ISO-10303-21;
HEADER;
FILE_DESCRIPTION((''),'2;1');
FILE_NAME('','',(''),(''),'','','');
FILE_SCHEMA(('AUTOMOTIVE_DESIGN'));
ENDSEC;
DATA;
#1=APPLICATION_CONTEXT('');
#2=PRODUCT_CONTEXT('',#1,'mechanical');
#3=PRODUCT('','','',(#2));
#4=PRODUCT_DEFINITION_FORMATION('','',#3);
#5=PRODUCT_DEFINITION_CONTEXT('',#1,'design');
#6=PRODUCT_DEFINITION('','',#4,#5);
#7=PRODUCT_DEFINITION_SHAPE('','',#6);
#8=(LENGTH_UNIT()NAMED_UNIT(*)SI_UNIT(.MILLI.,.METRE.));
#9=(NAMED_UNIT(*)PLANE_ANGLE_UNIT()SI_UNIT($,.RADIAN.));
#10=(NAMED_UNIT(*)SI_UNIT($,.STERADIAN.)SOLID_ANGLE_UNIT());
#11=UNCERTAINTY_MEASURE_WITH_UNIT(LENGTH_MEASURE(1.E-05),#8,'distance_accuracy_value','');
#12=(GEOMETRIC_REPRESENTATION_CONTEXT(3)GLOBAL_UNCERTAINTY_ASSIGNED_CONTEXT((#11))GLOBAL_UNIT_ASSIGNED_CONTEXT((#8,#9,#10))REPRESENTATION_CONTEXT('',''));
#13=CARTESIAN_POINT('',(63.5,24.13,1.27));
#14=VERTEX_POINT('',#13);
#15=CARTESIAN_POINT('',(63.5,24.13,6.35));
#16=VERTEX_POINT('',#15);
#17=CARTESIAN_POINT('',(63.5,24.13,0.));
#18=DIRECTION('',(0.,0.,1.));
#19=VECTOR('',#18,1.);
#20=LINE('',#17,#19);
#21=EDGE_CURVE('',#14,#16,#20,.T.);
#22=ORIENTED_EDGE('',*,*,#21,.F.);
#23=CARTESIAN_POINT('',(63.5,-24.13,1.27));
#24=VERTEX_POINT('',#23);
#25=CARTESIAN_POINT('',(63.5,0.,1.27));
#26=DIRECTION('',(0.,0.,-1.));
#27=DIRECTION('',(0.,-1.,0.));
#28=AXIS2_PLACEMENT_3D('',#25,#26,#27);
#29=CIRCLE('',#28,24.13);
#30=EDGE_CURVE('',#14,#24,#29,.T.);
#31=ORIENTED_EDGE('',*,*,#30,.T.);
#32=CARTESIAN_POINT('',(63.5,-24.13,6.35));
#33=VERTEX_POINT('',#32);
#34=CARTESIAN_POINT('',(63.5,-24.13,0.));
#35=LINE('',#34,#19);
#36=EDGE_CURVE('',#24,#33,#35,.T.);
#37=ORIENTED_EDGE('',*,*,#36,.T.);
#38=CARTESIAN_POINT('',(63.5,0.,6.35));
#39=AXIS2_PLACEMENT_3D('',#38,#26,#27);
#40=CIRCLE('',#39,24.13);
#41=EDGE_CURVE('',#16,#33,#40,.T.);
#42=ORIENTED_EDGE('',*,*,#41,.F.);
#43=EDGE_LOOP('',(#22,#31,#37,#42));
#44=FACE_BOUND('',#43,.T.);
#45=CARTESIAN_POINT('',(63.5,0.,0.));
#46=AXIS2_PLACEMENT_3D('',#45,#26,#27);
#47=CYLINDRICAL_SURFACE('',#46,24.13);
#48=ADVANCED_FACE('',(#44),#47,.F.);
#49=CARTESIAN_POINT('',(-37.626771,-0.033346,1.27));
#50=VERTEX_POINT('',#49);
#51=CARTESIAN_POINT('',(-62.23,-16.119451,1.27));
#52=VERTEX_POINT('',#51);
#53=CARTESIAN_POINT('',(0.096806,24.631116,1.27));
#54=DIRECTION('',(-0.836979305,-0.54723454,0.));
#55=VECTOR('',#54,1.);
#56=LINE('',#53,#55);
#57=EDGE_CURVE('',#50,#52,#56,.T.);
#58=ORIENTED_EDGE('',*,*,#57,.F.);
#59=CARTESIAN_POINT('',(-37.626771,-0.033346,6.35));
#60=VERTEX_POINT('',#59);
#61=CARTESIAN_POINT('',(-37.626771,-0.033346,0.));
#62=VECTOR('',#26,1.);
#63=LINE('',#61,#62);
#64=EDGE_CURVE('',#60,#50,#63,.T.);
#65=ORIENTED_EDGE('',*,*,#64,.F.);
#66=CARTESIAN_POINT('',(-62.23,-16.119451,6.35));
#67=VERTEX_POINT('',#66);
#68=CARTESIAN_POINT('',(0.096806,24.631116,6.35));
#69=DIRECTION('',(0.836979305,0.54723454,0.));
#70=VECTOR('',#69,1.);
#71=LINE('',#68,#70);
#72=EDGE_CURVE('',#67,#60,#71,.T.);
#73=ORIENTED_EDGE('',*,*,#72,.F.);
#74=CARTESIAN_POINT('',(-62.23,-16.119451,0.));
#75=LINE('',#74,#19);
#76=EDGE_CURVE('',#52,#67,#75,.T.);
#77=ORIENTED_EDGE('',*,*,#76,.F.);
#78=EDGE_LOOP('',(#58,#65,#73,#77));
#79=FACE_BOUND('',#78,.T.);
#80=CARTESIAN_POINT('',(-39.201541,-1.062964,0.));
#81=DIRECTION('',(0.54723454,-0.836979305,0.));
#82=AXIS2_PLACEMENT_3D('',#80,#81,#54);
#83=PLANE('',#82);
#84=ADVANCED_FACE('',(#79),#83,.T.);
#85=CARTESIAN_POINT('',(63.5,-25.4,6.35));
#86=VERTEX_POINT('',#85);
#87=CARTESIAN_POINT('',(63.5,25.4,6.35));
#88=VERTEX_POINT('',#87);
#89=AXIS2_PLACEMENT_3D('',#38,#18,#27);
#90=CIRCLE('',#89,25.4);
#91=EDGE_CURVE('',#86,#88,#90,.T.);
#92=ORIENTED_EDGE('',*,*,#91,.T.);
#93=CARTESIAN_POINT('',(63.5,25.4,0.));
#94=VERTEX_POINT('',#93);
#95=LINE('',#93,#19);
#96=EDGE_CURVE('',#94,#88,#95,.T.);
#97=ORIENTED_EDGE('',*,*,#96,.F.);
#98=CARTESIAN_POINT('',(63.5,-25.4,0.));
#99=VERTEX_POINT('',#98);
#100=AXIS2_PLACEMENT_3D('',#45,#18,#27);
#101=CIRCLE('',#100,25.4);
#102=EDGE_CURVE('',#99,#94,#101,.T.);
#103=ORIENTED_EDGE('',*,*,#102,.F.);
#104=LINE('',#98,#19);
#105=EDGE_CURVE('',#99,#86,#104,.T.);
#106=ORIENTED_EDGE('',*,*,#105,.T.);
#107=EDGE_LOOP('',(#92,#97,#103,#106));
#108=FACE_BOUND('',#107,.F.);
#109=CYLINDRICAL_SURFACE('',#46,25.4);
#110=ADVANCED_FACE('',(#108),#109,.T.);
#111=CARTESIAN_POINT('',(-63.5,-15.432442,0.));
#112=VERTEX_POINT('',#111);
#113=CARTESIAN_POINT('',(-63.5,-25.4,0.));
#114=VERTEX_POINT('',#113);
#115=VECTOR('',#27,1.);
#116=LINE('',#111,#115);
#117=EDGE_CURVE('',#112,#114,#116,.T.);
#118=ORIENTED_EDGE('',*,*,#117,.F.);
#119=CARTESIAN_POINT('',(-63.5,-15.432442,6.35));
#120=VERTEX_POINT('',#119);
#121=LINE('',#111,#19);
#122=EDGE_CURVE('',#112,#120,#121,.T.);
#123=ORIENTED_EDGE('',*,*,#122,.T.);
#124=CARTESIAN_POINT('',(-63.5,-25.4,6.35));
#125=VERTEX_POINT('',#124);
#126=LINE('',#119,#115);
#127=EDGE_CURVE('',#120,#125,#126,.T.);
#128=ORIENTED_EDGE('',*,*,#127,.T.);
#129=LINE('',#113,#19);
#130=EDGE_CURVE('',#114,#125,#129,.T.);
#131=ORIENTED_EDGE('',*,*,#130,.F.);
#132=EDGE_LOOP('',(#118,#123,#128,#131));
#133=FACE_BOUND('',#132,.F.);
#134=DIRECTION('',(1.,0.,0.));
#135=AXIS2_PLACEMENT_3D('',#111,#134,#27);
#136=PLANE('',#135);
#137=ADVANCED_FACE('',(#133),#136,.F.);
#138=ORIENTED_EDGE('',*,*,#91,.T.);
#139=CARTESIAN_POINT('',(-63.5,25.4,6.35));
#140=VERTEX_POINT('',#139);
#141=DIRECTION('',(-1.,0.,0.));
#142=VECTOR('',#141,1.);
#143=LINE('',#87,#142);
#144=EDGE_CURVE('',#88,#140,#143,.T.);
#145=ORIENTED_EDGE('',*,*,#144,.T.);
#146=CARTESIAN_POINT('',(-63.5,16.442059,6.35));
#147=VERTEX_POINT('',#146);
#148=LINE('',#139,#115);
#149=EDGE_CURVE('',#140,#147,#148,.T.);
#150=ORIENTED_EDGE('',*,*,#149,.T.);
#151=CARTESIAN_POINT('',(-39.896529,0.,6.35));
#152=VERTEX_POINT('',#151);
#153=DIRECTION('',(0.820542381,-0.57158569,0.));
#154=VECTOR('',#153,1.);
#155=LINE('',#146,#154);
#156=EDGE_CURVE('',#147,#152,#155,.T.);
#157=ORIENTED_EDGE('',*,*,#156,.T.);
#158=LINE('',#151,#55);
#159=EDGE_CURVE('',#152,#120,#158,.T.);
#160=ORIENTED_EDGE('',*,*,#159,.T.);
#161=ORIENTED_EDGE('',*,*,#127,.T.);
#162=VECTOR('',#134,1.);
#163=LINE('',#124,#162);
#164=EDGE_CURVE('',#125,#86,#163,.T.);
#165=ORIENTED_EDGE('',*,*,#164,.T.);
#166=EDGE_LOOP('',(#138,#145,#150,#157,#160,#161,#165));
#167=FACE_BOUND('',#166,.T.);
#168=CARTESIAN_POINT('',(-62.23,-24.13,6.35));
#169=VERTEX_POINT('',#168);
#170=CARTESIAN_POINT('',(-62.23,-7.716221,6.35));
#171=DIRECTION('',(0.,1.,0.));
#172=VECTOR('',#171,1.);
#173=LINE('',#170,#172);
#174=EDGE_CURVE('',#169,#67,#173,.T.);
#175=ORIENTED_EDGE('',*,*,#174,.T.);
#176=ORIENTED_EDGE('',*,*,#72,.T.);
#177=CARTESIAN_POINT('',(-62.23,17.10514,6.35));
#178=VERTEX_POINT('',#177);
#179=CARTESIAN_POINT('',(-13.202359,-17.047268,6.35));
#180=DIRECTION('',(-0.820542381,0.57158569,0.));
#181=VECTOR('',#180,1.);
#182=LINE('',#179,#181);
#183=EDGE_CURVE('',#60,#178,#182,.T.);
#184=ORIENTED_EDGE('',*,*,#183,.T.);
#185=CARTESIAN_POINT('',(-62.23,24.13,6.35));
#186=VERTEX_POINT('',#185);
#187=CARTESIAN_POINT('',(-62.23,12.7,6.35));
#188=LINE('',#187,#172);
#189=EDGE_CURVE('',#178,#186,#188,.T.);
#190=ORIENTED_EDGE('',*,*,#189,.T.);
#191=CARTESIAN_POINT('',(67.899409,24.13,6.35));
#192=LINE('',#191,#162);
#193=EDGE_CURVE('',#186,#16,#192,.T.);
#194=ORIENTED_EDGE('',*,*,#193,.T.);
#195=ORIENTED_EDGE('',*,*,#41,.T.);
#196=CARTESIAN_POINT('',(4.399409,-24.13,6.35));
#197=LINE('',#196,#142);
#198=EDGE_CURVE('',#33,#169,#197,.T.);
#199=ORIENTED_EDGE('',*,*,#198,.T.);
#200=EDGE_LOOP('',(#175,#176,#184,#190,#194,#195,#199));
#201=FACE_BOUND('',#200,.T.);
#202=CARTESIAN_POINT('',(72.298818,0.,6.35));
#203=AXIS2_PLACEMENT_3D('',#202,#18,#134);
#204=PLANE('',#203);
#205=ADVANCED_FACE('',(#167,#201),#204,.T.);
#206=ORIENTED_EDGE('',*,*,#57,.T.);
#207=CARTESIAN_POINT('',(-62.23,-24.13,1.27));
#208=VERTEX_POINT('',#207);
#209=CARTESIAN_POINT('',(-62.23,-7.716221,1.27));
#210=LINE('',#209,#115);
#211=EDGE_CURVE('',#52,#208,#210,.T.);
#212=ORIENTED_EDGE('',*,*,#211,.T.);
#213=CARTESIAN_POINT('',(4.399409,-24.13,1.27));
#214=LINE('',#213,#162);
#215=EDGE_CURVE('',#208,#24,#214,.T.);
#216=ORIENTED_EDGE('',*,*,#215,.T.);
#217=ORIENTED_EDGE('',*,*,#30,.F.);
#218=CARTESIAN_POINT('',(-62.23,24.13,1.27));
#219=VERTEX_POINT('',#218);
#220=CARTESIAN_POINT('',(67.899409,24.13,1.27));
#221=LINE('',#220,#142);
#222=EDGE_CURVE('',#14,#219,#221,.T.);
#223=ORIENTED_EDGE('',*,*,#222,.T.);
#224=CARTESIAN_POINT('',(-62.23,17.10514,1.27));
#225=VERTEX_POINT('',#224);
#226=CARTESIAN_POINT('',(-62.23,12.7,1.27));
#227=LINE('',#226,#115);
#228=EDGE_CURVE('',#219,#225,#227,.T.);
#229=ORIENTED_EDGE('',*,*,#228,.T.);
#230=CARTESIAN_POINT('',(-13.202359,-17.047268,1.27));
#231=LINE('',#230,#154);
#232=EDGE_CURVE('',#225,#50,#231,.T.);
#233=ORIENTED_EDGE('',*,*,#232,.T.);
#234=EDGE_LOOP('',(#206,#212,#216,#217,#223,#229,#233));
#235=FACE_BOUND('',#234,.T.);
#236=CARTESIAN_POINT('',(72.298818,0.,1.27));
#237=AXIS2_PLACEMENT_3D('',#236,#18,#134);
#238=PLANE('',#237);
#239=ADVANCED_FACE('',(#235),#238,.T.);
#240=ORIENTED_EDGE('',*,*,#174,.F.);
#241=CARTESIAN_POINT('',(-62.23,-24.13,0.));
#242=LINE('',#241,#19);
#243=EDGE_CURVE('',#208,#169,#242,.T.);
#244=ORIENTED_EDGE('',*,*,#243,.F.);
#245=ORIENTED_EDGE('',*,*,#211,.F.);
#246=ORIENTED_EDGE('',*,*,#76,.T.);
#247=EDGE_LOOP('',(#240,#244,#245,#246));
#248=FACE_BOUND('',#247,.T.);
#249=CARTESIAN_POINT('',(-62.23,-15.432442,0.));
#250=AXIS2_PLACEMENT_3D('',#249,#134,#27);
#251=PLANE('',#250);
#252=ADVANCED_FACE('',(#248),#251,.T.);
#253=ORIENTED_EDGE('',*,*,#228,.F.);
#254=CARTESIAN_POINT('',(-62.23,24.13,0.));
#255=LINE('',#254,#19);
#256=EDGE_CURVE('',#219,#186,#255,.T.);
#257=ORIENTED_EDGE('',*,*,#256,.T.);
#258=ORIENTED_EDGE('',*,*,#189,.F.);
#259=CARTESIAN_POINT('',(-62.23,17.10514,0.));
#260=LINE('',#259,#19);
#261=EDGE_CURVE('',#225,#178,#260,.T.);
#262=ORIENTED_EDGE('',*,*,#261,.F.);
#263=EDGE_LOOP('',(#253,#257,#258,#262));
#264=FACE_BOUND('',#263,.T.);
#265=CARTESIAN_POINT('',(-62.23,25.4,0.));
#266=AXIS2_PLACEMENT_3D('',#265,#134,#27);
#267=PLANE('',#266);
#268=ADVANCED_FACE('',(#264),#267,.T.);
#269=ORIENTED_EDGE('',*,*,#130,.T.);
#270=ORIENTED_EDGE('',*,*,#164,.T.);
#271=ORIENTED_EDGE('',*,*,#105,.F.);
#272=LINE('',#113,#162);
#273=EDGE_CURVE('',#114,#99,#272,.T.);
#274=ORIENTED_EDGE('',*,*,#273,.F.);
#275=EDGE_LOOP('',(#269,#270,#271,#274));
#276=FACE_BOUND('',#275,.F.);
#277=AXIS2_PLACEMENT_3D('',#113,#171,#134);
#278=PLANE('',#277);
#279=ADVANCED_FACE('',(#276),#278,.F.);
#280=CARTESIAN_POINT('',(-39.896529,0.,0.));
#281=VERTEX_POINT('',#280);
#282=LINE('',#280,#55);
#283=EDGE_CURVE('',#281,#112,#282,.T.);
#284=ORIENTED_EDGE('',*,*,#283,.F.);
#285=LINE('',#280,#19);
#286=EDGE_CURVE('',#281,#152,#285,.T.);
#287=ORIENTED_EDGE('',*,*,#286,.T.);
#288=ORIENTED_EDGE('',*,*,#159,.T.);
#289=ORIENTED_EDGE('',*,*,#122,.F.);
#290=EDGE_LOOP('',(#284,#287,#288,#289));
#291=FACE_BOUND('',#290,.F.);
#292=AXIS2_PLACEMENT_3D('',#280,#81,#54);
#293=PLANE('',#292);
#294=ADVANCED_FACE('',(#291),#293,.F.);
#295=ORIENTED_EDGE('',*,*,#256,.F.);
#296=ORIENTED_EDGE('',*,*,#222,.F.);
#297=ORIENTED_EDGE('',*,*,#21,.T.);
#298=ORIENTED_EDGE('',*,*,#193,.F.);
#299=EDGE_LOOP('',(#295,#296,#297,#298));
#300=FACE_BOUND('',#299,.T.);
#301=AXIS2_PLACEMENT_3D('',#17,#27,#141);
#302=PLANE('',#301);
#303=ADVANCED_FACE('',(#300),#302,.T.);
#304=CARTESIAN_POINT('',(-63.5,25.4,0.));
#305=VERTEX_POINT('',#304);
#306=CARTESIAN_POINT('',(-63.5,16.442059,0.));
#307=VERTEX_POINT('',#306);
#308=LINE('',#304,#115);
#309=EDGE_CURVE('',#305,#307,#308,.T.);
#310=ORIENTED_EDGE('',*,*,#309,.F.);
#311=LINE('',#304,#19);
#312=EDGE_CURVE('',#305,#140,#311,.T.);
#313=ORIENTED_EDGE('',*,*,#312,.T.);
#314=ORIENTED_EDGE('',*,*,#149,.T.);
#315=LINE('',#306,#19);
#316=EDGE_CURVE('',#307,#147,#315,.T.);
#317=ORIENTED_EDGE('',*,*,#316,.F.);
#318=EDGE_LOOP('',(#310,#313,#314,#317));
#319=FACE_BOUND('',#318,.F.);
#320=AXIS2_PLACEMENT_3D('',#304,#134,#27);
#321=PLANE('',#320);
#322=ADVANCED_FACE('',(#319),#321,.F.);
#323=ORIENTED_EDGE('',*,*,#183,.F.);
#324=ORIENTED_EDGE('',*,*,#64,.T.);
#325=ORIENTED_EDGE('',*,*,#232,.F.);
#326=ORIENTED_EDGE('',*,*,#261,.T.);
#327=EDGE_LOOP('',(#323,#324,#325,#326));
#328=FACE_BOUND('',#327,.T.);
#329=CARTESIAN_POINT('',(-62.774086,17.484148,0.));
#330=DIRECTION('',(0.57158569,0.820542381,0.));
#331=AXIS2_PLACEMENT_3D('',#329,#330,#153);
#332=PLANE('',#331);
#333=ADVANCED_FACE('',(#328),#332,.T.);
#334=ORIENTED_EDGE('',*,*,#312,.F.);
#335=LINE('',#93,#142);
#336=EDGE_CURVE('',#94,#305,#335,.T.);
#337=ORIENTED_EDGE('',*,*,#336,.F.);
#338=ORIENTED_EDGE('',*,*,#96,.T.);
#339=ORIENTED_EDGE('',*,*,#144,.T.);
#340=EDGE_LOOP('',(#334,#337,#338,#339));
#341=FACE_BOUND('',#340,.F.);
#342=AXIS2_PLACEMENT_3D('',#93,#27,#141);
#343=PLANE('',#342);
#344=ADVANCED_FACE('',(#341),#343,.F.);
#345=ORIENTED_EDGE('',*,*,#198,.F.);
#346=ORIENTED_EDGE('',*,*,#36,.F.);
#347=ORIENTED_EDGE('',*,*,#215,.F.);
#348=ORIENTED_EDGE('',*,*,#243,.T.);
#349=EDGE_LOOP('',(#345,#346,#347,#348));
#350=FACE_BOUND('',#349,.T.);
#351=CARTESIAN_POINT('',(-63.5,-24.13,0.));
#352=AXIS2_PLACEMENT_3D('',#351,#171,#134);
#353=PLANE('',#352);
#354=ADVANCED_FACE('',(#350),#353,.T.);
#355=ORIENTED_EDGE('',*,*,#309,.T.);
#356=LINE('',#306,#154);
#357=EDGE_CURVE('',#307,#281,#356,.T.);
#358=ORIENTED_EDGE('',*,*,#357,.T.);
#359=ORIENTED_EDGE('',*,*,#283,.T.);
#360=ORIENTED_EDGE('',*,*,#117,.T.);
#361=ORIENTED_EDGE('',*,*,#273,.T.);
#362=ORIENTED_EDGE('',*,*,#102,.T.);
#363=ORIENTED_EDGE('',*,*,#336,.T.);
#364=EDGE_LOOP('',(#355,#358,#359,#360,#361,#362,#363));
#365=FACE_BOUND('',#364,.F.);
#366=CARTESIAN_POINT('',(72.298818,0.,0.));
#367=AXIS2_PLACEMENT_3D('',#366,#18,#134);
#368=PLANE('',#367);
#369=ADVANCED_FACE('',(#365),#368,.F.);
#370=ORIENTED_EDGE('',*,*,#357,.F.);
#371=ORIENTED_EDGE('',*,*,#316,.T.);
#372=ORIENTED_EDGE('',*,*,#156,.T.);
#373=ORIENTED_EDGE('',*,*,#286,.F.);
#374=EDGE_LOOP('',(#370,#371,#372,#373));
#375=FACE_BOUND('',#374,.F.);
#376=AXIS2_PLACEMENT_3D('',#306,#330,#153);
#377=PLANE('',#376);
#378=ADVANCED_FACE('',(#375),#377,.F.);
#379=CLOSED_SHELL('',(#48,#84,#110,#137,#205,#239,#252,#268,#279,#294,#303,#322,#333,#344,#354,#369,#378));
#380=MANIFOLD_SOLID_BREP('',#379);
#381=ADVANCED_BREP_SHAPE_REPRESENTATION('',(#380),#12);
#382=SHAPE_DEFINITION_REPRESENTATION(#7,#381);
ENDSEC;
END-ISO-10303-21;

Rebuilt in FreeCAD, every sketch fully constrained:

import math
import FreeCAD as App
import Part
import Sketcher
from FreeCAD import Vector
Q = App.Units.Quantity


def faces_at(feature, points):
    """Names of the faces that lie closest to the given points."""
    faces = feature.Shape.Faces
    near = lambda p: min(range(len(faces)), key=lambda i: faces[i].distToShape(Part.Vertex(*p))[0])
    return sorted({f"Face{near(p) + 1}" for p in points})

doc = App.newDocument("Part")
body = doc.addObject("PartDesign::Body", "Body")

# Sketch on XY plane
sketch1 = doc.addObject("Sketcher::SketchObject", "Sketch")
body.addObject(sketch1)
sketch1.AttachmentSupport = (doc.XY_Plane, [""])
sketch1.MapMode = "FlatFace"
sketch1.addGeometry([
    Part.ArcOfCircle(Part.Circle(Vector(64, 0, 0), Vector(0, 0, 1), 25), math.radians(-90), math.radians(90)),  # 0
    Part.LineSegment(Vector(64, 25, 0), Vector(-64, 25, 0)),  # 1
    Part.LineSegment(Vector(-64, 25, 0), Vector(-64, 16, 0)),  # 2
    Part.LineSegment(Vector(-64, 16, 0), Vector(-40, 0, 0)),  # 3
    Part.LineSegment(Vector(-40, 0, 0), Vector(-64, -15, 0)),  # 4
    Part.LineSegment(Vector(-64, -15, 0), Vector(-64, -25, 0)),  # 5
    Part.LineSegment(Vector(-64, -25, 0), Vector(64, -25, 0)),  # 6
], False)
sketch1.addConstraint([
    Sketcher.Constraint("Tangent", 0, 2, 1, 1),
    Sketcher.Constraint("Coincident", 1, 2, 2, 1),
    Sketcher.Constraint("Coincident", 2, 2, 3, 1),
    Sketcher.Constraint("Coincident", 3, 2, 4, 1),
    Sketcher.Constraint("Coincident", 4, 2, 5, 1),
    Sketcher.Constraint("Coincident", 5, 2, 6, 1),
    Sketcher.Constraint("Tangent", 6, 2, 0, 1),
    Sketcher.Constraint("Horizontal", 1),
    Sketcher.Constraint("Vertical", 2),
    Sketcher.Constraint("Vertical", 5),
    Sketcher.Constraint("Horizontal", 6),
    Sketcher.Constraint("Symmetric", 0, 2, 5, 2, -1, 1),
    Sketcher.Constraint("PointOnObject", 3, 2, -1),
    Sketcher.Constraint("Vertical", 2, 2, 4, 2),
    Sketcher.Constraint("Radius", 0, Q("1 in")),
    Sketcher.Constraint("DistanceX", 1, 2, 1, 1, Q("5 in")),
    Sketcher.Constraint("DistanceY", 2, 2, 2, 1, 8.957941),
    Sketcher.Constraint("DistanceY", 5, 2, 5, 1, 9.967558),
    Sketcher.Constraint("Distance", 4, 28.200782),
])
pad1 = doc.addObject("PartDesign::Pad", "Pad")
body.addObject(pad1)
pad1.Profile = sketch1
pad1.Length = Q("0.25 in")
doc.recompute()

thickness = doc.addObject("PartDesign::Thickness", "Thickness")
body.addObject(thickness)
thickness.Base = (pad1, faces_at(pad1, [(12.7, 0, 6.35)]))
thickness.Value = Q("0.05 in")
thickness.Reversed = True
thickness.Join = "Intersection"

doc.recompute()
